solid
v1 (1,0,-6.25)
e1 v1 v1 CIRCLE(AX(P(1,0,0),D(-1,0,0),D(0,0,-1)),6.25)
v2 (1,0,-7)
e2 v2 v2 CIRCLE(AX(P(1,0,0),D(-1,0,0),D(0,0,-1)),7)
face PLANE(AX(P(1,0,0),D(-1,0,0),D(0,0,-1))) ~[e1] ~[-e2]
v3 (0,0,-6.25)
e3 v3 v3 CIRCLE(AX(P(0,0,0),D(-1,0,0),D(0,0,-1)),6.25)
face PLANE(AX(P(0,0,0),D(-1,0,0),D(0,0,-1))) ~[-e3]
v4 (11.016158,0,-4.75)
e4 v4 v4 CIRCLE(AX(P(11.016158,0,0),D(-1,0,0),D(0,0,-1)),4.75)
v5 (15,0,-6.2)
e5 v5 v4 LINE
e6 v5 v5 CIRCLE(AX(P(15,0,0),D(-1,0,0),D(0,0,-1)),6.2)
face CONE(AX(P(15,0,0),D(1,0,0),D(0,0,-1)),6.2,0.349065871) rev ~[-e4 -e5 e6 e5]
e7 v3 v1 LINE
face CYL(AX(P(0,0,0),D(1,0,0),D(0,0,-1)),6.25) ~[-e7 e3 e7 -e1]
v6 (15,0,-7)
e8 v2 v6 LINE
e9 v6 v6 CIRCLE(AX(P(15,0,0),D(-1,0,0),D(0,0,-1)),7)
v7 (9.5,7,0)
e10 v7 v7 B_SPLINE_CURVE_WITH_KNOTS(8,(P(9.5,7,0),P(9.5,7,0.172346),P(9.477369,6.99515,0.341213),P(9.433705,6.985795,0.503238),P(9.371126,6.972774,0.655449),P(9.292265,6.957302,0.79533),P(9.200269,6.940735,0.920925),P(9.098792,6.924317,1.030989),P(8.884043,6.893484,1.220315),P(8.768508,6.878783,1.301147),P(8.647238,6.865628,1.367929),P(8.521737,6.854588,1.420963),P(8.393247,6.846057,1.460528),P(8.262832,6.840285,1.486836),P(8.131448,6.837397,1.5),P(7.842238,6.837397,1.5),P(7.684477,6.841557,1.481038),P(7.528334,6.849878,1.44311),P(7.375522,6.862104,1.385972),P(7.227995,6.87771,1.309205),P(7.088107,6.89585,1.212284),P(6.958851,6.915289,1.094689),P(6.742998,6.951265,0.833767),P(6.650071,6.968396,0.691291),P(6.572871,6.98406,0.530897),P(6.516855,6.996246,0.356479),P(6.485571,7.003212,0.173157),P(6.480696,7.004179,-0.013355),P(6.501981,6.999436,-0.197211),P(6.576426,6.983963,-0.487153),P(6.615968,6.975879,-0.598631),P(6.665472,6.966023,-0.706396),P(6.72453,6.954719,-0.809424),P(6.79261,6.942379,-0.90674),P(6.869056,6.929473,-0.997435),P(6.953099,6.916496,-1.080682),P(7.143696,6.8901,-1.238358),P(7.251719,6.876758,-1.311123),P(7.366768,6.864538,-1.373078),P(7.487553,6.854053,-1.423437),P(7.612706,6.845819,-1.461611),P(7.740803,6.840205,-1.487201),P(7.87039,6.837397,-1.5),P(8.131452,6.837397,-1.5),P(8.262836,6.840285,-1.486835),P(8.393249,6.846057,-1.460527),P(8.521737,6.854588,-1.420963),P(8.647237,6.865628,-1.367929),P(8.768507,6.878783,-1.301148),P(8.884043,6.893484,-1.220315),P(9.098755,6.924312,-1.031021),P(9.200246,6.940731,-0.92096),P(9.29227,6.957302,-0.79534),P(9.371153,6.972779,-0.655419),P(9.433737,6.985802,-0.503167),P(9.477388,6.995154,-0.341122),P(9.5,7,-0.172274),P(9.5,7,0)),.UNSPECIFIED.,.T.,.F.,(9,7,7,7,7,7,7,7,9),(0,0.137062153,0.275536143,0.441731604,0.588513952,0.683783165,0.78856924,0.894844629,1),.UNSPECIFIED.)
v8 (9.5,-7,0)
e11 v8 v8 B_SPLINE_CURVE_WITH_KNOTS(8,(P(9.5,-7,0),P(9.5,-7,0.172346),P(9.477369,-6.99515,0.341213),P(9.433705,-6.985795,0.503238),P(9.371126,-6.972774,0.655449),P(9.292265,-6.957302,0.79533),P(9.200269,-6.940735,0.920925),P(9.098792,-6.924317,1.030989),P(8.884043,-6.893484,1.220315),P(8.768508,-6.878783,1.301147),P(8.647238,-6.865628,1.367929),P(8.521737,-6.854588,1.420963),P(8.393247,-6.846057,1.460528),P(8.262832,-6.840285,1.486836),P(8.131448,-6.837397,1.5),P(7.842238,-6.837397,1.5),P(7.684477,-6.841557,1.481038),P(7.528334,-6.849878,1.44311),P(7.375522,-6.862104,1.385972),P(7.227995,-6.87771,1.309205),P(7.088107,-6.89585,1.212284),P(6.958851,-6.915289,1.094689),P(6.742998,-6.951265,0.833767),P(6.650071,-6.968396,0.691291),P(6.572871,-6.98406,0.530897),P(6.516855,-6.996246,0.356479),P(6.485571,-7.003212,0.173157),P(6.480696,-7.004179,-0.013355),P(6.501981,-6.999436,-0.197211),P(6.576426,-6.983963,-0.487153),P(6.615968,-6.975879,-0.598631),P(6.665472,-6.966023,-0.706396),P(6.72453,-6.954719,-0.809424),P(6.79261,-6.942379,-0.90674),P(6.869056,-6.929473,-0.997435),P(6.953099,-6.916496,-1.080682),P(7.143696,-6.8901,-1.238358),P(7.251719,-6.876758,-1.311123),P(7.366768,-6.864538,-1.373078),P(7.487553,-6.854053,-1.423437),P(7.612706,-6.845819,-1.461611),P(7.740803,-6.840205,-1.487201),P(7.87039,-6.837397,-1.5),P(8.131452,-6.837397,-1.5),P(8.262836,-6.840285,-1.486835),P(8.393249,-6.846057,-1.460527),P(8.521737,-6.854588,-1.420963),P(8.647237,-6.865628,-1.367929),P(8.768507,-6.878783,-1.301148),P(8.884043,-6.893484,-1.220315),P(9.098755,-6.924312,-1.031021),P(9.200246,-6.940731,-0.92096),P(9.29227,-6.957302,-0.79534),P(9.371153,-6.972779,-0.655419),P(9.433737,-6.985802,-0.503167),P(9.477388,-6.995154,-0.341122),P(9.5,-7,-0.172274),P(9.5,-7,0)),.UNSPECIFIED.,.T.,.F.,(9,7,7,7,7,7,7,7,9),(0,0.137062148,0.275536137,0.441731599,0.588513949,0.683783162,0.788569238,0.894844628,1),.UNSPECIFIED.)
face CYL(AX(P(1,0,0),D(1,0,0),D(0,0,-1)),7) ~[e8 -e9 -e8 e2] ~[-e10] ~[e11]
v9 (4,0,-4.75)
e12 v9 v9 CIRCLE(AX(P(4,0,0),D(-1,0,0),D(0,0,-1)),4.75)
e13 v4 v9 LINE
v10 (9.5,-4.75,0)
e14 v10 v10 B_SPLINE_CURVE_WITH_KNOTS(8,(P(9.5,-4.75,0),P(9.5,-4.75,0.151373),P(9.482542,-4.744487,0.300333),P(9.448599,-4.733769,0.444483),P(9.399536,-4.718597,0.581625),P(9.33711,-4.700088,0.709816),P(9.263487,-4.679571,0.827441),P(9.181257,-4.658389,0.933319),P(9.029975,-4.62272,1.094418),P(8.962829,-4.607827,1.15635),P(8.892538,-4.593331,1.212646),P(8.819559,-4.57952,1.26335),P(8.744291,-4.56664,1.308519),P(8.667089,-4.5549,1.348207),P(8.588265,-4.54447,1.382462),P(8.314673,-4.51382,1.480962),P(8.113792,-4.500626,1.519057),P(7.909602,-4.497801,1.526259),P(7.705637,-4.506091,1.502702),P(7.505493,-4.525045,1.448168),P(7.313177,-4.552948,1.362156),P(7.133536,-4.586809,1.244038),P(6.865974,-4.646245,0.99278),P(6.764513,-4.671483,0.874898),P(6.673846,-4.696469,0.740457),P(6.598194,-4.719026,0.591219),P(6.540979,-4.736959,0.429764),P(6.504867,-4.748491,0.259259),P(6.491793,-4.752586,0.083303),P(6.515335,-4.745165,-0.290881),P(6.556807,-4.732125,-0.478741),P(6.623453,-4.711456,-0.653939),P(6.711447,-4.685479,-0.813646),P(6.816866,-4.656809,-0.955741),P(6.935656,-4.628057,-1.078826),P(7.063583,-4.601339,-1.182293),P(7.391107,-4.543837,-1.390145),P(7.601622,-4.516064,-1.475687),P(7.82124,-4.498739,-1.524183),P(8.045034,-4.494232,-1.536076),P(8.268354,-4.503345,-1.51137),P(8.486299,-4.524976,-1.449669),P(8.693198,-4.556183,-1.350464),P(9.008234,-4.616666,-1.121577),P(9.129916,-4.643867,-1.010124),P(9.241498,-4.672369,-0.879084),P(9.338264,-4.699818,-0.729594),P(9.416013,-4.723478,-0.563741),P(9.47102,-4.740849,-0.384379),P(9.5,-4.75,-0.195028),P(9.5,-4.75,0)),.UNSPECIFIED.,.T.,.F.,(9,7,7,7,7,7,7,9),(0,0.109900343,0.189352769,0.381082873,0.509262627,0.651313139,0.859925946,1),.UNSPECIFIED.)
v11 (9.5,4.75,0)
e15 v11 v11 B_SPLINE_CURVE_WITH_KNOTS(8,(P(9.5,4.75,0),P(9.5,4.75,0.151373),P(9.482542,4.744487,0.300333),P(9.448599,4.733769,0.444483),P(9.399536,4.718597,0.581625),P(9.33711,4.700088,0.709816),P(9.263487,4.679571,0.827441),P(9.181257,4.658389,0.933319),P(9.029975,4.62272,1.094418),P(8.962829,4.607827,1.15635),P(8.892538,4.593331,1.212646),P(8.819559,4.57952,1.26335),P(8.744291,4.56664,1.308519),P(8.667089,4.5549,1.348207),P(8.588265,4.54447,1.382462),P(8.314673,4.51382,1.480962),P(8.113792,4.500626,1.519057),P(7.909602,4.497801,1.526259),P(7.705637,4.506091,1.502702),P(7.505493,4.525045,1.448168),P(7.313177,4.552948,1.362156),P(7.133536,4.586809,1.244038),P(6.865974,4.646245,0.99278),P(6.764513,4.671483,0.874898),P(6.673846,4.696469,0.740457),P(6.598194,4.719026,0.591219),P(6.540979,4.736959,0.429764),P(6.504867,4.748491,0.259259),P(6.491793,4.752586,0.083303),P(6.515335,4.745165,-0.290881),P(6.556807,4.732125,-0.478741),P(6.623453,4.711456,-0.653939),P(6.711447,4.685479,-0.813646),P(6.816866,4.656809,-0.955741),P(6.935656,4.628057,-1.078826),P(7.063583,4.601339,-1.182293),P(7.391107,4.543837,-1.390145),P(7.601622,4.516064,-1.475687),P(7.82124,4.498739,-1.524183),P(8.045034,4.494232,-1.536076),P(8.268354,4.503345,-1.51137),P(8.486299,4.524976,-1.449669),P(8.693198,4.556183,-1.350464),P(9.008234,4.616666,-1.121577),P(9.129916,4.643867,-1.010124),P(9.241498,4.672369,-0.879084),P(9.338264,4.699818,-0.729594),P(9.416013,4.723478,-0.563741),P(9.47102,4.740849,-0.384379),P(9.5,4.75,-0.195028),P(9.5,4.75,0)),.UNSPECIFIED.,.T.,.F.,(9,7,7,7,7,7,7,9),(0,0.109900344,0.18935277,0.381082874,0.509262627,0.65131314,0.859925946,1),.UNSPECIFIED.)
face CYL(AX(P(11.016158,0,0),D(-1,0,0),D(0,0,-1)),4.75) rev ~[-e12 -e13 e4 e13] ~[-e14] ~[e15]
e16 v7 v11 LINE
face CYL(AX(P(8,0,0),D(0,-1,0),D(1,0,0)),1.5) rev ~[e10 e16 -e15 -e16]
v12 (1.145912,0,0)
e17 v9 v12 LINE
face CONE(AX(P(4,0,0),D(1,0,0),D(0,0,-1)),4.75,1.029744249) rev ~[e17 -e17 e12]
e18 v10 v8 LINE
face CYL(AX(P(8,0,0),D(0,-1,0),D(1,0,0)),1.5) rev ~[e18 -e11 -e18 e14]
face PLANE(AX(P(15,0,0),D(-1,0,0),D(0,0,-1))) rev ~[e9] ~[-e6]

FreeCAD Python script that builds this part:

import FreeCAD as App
import Part
import Sketcher
from FreeCAD import Vector
Q = App.Units.Quantity

doc = App.newDocument("Part")
body = doc.addObject("PartDesign::Body", "Body")

# Sketch on XZ plane
sketch1 = body.newObject("Sketcher::SketchObject", "Sketch")
sketch1.AttachmentSupport = (doc.getObject("XZ_Plane"), [""])
sketch1.MapMode = "FlatFace"
sketch1.addGeometry([
    Part.LineSegment(Vector(1.145912, 0, 0), Vector(0, 0, 0)),  # 0
    Part.LineSegment(Vector(0, 0, 0), Vector(0, -6.25, 0)),  # 1
    Part.LineSegment(Vector(0, -6.25, 0), Vector(1, -6.25, 0)),  # 2
    Part.LineSegment(Vector(1, -6.25, 0), Vector(1, -7, 0)),  # 3
    Part.LineSegment(Vector(1, -7, 0), Vector(15, -7, 0)),  # 4
    Part.LineSegment(Vector(15, -7, 0), Vector(15, -6.2, 0)),  # 5
    Part.LineSegment(Vector(15, -6.2, 0), Vector(11.016158, -4.75, 0)),  # 6
    Part.LineSegment(Vector(11.016158, -4.75, 0), Vector(4, -4.75, 0)),  # 7
    Part.LineSegment(Vector(4, -4.75, 0), Vector(1.145912, 0, 0)),  # 8
], False)
sketch1.addConstraint([
    Sketcher.Constraint("Coincident", 0, 2, 1, 1),
    Sketcher.Constraint("Coincident", 1, 2, 2, 1),
    Sketcher.Constraint("Coincident", 2, 2, 3, 1),
    Sketcher.Constraint("Coincident", 3, 2, 4, 1),
    Sketcher.Constraint("Coincident", 4, 2, 5, 1),
    Sketcher.Constraint("Coincident", 5, 2, 6, 1),
    Sketcher.Constraint("Coincident", 6, 2, 7, 1),
    Sketcher.Constraint("Coincident", 7, 2, 8, 1),
    Sketcher.Constraint("Coincident", 8, 2, 0, 1),
    Sketcher.Constraint("Horizontal", 0),
    Sketcher.Constraint("Vertical", 1),
    Sketcher.Constraint("Horizontal", 2),
    Sketcher.Constraint("Vertical", 3),
    Sketcher.Constraint("Horizontal", 4),
    Sketcher.Constraint("Vertical", 5),
    Sketcher.Constraint("Horizontal", 7),
    Sketcher.Constraint("Coincident", 0, 2, -1, 1),
    Sketcher.Constraint("DistanceX", 2, 1, 2, 2, Q("1 mm")),
    Sketcher.Constraint("DistanceX", 4, 1, 4, 2, Q("14 mm")),
    Sketcher.Constraint("Angle", 6, Q("159.999999 deg")),
    Sketcher.Constraint("Angle", 8, Q("121.000001 deg")),
    Sketcher.Constraint("DistanceY", 5, 1, 5, 2, Q("0.8 mm")),
    Sketcher.Constraint("DistanceY", 3, 2, -1, 1, Q("7 mm")),
    Sketcher.Constraint("DistanceX", -1, 1, 7, 2, Q("4 mm")),
    Sketcher.Constraint("DistanceY", 1, 2, 1, 1, Q("6.25 mm")),
    Sketcher.Constraint("DistanceY", 2, 2, 6, 2, Q("1.5 mm")),
])
revolution = body.newObject("PartDesign::Revolution", "Revolution")
revolution.Profile = sketch1
revolution.ReferenceAxis = (sketch1, ["H_Axis"])
revolution.Angle = 360

# Sketch on XZ plane
sketch2 = body.newObject("Sketcher::SketchObject", "Sketch001")
sketch2.AttachmentSupport = (doc.getObject("XZ_Plane"), [""])
sketch2.MapMode = "FlatFace"
sketch2.addGeometry(Part.Circle(Vector(8, 0, 0), Vector(0, 0, 1), 1.5), False)
sketch2.addConstraint([
    Sketcher.Constraint("PointOnObject", 0, 3, -1),
    Sketcher.Constraint("Diameter", 0, Q("3 mm")),
    Sketcher.Constraint("DistanceX", -1, 1, 0, 3, Q("8 mm")),
])
pocket1 = body.newObject("PartDesign::Pocket", "Pocket")
pocket1.Profile = sketch2
pocket1.Length = 25
pocket1.Midplane = True

doc.recompute()
